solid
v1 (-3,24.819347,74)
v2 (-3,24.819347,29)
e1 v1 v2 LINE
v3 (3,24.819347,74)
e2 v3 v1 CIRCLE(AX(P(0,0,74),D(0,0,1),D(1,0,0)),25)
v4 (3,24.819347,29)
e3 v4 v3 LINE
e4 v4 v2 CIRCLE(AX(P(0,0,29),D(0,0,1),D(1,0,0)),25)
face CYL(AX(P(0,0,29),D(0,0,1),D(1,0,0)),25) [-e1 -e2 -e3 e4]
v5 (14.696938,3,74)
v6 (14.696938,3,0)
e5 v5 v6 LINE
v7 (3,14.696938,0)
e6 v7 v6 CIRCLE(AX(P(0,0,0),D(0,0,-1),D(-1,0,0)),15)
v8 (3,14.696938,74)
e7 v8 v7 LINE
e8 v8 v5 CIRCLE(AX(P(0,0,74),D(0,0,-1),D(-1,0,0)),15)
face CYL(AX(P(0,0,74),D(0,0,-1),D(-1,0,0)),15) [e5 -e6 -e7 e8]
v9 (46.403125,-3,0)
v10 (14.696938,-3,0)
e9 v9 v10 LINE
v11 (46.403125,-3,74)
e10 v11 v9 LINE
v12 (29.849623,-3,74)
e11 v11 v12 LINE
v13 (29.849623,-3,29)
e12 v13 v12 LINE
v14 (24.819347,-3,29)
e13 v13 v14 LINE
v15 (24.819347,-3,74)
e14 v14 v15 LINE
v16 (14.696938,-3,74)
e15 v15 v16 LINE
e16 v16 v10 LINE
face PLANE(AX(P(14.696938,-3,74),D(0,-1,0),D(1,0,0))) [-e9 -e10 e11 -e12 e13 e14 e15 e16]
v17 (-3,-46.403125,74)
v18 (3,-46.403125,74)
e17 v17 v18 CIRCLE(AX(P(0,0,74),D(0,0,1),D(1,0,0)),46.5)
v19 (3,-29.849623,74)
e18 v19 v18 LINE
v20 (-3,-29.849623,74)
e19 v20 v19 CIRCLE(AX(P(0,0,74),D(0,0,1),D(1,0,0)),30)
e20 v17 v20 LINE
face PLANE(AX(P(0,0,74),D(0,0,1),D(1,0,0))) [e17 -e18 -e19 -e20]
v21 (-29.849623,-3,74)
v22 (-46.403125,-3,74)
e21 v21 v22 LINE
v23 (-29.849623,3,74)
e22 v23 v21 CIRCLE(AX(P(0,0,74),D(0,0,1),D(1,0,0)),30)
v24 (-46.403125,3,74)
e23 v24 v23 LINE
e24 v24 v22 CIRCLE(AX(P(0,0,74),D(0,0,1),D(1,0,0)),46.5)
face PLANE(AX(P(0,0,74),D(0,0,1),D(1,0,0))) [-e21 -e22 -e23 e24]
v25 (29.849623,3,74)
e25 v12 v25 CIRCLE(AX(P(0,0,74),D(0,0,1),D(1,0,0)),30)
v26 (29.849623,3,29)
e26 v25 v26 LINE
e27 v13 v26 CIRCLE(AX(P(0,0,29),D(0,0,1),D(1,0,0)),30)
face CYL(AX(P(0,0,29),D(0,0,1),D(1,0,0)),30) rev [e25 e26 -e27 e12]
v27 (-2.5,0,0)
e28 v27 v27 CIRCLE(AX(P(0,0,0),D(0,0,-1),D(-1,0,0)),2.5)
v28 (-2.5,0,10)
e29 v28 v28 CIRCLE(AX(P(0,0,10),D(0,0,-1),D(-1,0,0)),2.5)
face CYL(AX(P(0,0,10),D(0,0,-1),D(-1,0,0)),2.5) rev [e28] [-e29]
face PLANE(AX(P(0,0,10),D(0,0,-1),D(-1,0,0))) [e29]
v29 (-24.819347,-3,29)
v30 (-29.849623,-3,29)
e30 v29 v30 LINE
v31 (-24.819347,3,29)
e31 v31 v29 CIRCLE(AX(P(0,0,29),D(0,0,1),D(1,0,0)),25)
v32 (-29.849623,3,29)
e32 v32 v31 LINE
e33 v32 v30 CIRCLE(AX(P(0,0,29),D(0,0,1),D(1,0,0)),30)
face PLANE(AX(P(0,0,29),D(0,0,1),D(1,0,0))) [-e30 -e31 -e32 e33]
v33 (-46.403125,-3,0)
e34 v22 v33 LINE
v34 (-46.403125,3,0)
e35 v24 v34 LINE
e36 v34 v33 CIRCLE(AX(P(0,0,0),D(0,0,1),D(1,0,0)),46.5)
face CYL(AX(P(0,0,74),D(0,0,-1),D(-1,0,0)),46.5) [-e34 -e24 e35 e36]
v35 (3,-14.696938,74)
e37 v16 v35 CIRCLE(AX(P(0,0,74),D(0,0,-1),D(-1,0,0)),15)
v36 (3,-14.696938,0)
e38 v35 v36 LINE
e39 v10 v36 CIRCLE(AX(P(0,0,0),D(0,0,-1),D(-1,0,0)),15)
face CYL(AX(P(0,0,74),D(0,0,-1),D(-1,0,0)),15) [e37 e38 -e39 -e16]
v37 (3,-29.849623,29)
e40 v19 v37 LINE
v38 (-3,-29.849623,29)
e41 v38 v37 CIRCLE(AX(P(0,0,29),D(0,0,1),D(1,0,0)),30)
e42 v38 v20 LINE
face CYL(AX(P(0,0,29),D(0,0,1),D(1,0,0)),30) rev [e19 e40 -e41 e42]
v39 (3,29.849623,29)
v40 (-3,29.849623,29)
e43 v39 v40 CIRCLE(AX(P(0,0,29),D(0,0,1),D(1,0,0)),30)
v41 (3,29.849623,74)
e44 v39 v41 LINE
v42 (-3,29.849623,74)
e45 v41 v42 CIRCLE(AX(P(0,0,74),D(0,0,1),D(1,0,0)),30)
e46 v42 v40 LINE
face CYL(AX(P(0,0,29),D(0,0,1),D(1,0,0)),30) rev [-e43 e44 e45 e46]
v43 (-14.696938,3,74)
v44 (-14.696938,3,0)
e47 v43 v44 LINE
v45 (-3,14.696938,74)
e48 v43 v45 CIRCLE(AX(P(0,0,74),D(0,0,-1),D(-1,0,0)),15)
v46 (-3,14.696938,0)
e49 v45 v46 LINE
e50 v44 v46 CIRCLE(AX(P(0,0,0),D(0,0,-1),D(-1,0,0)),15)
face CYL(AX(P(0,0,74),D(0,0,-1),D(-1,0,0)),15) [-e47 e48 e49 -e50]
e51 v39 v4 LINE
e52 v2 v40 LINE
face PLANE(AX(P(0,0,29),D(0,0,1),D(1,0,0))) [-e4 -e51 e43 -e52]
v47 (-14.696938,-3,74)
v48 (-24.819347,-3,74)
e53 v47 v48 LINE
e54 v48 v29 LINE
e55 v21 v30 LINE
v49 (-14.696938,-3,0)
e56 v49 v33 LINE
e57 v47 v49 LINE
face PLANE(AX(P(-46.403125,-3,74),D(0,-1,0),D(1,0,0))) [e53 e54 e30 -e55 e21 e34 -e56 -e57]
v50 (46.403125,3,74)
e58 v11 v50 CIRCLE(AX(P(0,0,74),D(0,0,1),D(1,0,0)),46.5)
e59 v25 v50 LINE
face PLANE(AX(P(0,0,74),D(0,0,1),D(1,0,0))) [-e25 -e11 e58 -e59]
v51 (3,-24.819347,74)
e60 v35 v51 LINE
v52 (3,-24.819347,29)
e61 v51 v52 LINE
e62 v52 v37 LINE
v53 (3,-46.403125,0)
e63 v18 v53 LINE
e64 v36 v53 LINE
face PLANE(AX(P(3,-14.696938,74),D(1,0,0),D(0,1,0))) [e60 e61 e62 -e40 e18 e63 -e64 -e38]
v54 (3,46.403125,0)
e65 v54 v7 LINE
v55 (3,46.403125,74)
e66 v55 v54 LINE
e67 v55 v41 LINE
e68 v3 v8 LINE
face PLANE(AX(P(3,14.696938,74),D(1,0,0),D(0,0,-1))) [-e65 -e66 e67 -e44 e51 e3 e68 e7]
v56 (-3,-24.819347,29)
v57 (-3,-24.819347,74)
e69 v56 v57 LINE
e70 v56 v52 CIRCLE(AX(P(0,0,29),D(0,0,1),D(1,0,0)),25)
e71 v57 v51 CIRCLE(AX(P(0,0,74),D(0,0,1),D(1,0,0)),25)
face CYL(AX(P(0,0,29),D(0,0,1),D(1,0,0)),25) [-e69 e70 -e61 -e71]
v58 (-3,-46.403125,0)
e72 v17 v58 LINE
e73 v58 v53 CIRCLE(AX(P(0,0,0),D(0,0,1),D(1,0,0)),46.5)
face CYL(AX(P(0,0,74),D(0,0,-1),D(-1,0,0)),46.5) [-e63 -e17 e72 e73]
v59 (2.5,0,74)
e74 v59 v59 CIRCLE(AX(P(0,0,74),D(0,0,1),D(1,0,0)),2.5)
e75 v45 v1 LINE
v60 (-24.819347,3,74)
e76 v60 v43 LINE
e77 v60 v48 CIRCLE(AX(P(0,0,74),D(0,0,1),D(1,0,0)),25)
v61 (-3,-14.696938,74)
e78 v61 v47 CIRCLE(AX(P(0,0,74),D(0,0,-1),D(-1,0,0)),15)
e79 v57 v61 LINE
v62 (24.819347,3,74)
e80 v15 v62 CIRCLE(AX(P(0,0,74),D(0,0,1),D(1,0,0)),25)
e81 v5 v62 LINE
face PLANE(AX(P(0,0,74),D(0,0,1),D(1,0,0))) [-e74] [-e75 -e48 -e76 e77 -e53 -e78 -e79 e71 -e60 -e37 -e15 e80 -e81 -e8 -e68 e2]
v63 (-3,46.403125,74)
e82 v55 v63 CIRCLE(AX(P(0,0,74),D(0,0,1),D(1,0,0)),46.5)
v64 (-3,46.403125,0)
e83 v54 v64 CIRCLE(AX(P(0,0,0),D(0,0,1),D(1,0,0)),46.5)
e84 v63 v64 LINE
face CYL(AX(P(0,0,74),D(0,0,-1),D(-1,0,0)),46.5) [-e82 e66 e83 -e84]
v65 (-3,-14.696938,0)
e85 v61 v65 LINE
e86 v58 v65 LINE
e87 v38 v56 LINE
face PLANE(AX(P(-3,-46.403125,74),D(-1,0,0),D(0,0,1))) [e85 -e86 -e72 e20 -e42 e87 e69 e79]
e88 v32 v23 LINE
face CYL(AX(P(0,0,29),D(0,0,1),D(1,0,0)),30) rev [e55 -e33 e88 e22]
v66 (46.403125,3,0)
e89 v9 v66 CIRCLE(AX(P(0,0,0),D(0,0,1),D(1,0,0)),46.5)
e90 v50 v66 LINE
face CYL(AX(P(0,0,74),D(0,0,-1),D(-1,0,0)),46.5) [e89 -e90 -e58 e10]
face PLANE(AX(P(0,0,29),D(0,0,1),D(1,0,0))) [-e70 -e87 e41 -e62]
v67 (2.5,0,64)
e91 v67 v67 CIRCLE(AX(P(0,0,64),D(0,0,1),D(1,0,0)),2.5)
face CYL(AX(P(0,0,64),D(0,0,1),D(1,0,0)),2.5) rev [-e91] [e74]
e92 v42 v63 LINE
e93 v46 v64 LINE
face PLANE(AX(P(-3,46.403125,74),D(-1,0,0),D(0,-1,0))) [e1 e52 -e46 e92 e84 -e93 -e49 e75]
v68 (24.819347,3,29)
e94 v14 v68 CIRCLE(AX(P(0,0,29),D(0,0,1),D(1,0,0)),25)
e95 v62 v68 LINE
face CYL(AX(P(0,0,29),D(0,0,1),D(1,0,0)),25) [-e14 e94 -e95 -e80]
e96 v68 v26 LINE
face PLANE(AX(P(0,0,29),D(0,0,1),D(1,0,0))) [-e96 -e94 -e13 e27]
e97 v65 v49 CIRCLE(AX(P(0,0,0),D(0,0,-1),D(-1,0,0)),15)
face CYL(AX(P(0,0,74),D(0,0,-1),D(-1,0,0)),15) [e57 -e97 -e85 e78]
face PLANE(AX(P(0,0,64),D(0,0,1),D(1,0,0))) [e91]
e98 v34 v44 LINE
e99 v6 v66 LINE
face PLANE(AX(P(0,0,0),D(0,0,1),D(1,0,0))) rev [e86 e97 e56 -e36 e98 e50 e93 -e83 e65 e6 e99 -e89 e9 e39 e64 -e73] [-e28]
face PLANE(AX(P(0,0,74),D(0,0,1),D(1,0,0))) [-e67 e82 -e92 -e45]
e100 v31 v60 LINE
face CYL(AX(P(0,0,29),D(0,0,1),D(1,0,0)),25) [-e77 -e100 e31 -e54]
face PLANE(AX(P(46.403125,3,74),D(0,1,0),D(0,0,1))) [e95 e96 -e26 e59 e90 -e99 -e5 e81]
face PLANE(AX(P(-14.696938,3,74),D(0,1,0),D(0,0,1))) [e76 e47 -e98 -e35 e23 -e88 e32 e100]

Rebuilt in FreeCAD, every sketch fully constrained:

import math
import FreeCAD as App
import Part
import Sketcher

V = App.Vector
Q = App.Units.Quantity

doc = App.newDocument("Part")
body = doc.addObject("PartDesign::Body", "Body")

sketch1 = body.newObject("Sketcher::SketchObject", "Sketch")
sketch1.AttachmentSupport = (doc.getObject("XY_Plane"), [""])
sketch1.MapMode = "FlatFace"
sketch1.addGeometry(Part.Circle(V(0, 0, 0), V(0, 0, 1), 46), False)
sketch1.addConstraint([
    Sketcher.Constraint("Coincident", 0, 3, -1, 1),
    Sketcher.Constraint("Diameter", 0, Q("93 mm")),
])
pad1 = body.newObject("PartDesign::Pad", "Pad")
pad1.Profile = sketch1
pad1.Length = 74

sketch2 = body.newObject("Sketcher::SketchObject", "Sketch001")
sketch2.AttachmentSupport = (doc.getObject("XY_Plane"), [""])
sketch2.MapMode = "FlatFace"
sketch2.AttachmentOffset = App.Placement(V(0, 0, 74), App.Rotation())
sketch2.addGeometry(Part.Circle(V(0, 0, 0), V(0, 0, 1), 2.5), False)
sketch2.addConstraint([
    Sketcher.Constraint("Coincident", 0, 3, -1, 1),
    Sketcher.Constraint("Diameter", 0, Q("5 mm")),
])
pocket1 = body.newObject("PartDesign::Pocket", "Pocket")
pocket1.Profile = sketch2
pocket1.Length = 10

sketch3 = body.newObject("Sketcher::SketchObject", "Sketch002")
sketch3.AttachmentSupport = (doc.getObject("XY_Plane"), [""])
sketch3.MapMode = "FlatFace"
sketch3.addGeometry(Part.Circle(V(0, 0, 0), V(0, 0, 1), 2.5), False)
sketch3.addConstraint([
    Sketcher.Constraint("Coincident", 0, 3, -1, 1),
    Sketcher.Constraint("Diameter", 0, Q("5 mm")),
])
pocket2 = body.newObject("PartDesign::Pocket", "Pocket001")
pocket2.Profile = sketch3
pocket2.Length = 10
pocket2.Reversed = True

sketch4 = body.newObject("Sketcher::SketchObject", "Sketch003")
sketch4.AttachmentSupport = (doc.getObject("XY_Plane"), [""])
sketch4.MapMode = "FlatFace"
sketch4.addGeometry([
    Part.LineSegment(V(63, 63, 0), V(63, -63, 0)),
    Part.LineSegment(V(63, -63, 0), V(-63, -63, 0)),
    Part.LineSegment(V(-63, -63, 0), V(-63, 63, 0)),
    Part.LineSegment(V(-63, 63, 0), V(63, 63, 0)),
    Part.ArcOfCircle(Part.Circle(V(0, 0, 0), V(0, 0, 1), 47), math.radians(-3.7), math.radians(3.7)),
    Part.LineSegment(V(46, 3, 0), V(15, 3, 0)),
    Part.ArcOfCircle(Part.Circle(V(0, 0, 0), V(0, 0, 1), 15), math.radians(12), math.radians(78)),
    Part.LineSegment(V(3, 15, 0), V(3, 46, 0)),
    Part.ArcOfCircle(Part.Circle(V(0, 0, 0), V(0, 0, 1), 47), math.radians(86.3), math.radians(93.7)),
    Part.LineSegment(V(-3, 46, 0), V(-3, 15, 0)),
    Part.ArcOfCircle(Part.Circle(V(0, 0, 0), V(0, 0, 1), 15), math.radians(102), math.radians(168)),
    Part.LineSegment(V(-15, 3, 0), V(-46, 3, 0)),
    Part.ArcOfCircle(Part.Circle(V(0, 0, 0), V(0, 0, 1), 47), math.radians(176.3), math.radians(183.7)),
    Part.LineSegment(V(-46, -3, 0), V(-15, -3, 0)),
    Part.ArcOfCircle(Part.Circle(V(0, 0, 0), V(0, 0, 1), 15), math.radians(-168), math.radians(-102)),
    Part.LineSegment(V(-3, -15, 0), V(-3, -46, 0)),
    Part.ArcOfCircle(Part.Circle(V(0, 0, 0), V(0, 0, 1), 47), math.radians(-93.7), math.radians(-86.3)),
    Part.LineSegment(V(3, -46, 0), V(3, -15, 0)),
    Part.ArcOfCircle(Part.Circle(V(0, 0, 0), V(0, 0, 1), 15), math.radians(-78), math.radians(-12)),
    Part.LineSegment(V(15, -3, 0), V(46, -3, 0)),
], False)
sketch4.addConstraint([
    Sketcher.Constraint("Coincident", 0, 2, 1, 1),
    Sketcher.Constraint("Coincident", 1, 2, 2, 1),
    Sketcher.Constraint("Coincident", 2, 2, 3, 1),
    Sketcher.Constraint("Coincident", 3, 2, 0, 1),
    Sketcher.Constraint("Coincident", 4, 2, 5, 1),
    Sketcher.Constraint("Coincident", 5, 2, 6, 1),
    Sketcher.Constraint("Coincident", 6, 2, 7, 1),
    Sketcher.Constraint("Coincident", 7, 2, 8, 1),
    Sketcher.Constraint("Coincident", 8, 2, 9, 1),
    Sketcher.Constraint("Coincident", 9, 2, 10, 1),
    Sketcher.Constraint("Coincident", 10, 2, 11, 1),
    Sketcher.Constraint("Coincident", 11, 2, 12, 1),
    Sketcher.Constraint("Coincident", 12, 2, 13, 1),
    Sketcher.Constraint("Coincident", 13, 2, 14, 1),
    Sketcher.Constraint("Coincident", 14, 2, 15, 1),
    Sketcher.Constraint("Coincident", 15, 2, 16, 1),
    Sketcher.Constraint("Coincident", 16, 2, 17, 1),
    Sketcher.Constraint("Coincident", 17, 2, 18, 1),
    Sketcher.Constraint("Coincident", 18, 2, 19, 1),
    Sketcher.Constraint("Coincident", 19, 2, 4, 1),
    Sketcher.Constraint("Vertical", 0),
    Sketcher.Constraint("Horizontal", 1),
    Sketcher.Constraint("Vertical", 2),
    Sketcher.Constraint("Horizontal", 3),
    Sketcher.Constraint("Horizontal", 5),
    Sketcher.Constraint("Vertical", 7),
    Sketcher.Constraint("Vertical", 9),
    Sketcher.Constraint("Horizontal", 11),
    Sketcher.Constraint("Horizontal", 13),
    Sketcher.Constraint("Vertical", 15),
    Sketcher.Constraint("Vertical", 17),
    Sketcher.Constraint("Horizontal", 19),
    Sketcher.Constraint("Coincident", 4, 3, -1, 1),
    Sketcher.Constraint("Coincident", 6, 3, -1, 1),
    Sketcher.Constraint("Coincident", 8, 3, -1, 1),
    Sketcher.Constraint("Coincident", 10, 3, -1, 1),
    Sketcher.Constraint("Coincident", 12, 3, -1, 1),
    Sketcher.Constraint("Coincident", 14, 3, -1, 1),
    Sketcher.Constraint("Coincident", 16, 3, -1, 1),
    Sketcher.Constraint("Coincident", 18, 3, -1, 1),
    Sketcher.Constraint("Equal", 4, 8),
    Sketcher.Constraint("Equal", 6, 10),
    Sketcher.Constraint("Equal", 8, 12),
    Sketcher.Constraint("Equal", 10, 14),
    Sketcher.Constraint("Equal", 12, 16),
    Sketcher.Constraint("Equal", 14, 18),
    Sketcher.Constraint("Symmetric", 0, 2, 2, 2, -1, 1),
    Sketcher.Constraint("Horizontal", 7, 2, 8, 2),
    Sketcher.Constraint("Horizontal", 5, 2, 10, 2),
    Sketcher.Constraint("Horizontal", 15, 2, 16, 2),
    Sketcher.Constraint("Horizontal", 13, 2, 18, 2),
    Sketcher.Constraint("Vertical", 11, 2, 12, 2),
    Sketcher.Constraint("Vertical", 9, 2, 14, 2),
    Sketcher.Constraint("Equal", 3, 0),
    Sketcher.Constraint("Equal", 19, 7),
    Sketcher.Constraint("Radius", 6, Q("15 mm")),
    Sketcher.Constraint("Radius", 4, Q("46.5 mm")),
    Sketcher.Constraint("DistanceY", -1, 1, 4, 2, Q("3 mm")),
    Sketcher.Constraint("DistanceX", 1, 2, 1, 1, Q("125.182 mm")),
])
pocket3 = body.newObject("PartDesign::Pocket", "Pocket002")
pocket3.Profile = sketch4
pocket3.Type = "ThroughAll"
pocket3.Reversed = True

sketch5 = body.newObject("Sketcher::SketchObject", "Sketch004")
sketch5.AttachmentSupport = (doc.getObject("XY_Plane"), [""])
sketch5.MapMode = "FlatFace"
sketch5.AttachmentOffset = App.Placement(V(0, 0, 74), App.Rotation())
sketch5.addGeometry([
    Part.Circle(V(0, 0, 0), V(0, 0, 1), 30),
    Part.Circle(V(0, 0, 0), V(0, 0, 1), 25),
], False)
sketch5.addConstraint([
    Sketcher.Constraint("Coincident", 0, 3, -1, 1),
    Sketcher.Constraint("Coincident", 1, 3, -1, 1),
    Sketcher.Constraint("Diameter", 0, Q("60 mm")),
    Sketcher.Constraint("Diameter", 1, Q("50 mm")),
])
pocket4 = body.newObject("PartDesign::Pocket", "Pocket003")
pocket4.Profile = sketch5
pocket4.Length = 45

doc.recompute()
